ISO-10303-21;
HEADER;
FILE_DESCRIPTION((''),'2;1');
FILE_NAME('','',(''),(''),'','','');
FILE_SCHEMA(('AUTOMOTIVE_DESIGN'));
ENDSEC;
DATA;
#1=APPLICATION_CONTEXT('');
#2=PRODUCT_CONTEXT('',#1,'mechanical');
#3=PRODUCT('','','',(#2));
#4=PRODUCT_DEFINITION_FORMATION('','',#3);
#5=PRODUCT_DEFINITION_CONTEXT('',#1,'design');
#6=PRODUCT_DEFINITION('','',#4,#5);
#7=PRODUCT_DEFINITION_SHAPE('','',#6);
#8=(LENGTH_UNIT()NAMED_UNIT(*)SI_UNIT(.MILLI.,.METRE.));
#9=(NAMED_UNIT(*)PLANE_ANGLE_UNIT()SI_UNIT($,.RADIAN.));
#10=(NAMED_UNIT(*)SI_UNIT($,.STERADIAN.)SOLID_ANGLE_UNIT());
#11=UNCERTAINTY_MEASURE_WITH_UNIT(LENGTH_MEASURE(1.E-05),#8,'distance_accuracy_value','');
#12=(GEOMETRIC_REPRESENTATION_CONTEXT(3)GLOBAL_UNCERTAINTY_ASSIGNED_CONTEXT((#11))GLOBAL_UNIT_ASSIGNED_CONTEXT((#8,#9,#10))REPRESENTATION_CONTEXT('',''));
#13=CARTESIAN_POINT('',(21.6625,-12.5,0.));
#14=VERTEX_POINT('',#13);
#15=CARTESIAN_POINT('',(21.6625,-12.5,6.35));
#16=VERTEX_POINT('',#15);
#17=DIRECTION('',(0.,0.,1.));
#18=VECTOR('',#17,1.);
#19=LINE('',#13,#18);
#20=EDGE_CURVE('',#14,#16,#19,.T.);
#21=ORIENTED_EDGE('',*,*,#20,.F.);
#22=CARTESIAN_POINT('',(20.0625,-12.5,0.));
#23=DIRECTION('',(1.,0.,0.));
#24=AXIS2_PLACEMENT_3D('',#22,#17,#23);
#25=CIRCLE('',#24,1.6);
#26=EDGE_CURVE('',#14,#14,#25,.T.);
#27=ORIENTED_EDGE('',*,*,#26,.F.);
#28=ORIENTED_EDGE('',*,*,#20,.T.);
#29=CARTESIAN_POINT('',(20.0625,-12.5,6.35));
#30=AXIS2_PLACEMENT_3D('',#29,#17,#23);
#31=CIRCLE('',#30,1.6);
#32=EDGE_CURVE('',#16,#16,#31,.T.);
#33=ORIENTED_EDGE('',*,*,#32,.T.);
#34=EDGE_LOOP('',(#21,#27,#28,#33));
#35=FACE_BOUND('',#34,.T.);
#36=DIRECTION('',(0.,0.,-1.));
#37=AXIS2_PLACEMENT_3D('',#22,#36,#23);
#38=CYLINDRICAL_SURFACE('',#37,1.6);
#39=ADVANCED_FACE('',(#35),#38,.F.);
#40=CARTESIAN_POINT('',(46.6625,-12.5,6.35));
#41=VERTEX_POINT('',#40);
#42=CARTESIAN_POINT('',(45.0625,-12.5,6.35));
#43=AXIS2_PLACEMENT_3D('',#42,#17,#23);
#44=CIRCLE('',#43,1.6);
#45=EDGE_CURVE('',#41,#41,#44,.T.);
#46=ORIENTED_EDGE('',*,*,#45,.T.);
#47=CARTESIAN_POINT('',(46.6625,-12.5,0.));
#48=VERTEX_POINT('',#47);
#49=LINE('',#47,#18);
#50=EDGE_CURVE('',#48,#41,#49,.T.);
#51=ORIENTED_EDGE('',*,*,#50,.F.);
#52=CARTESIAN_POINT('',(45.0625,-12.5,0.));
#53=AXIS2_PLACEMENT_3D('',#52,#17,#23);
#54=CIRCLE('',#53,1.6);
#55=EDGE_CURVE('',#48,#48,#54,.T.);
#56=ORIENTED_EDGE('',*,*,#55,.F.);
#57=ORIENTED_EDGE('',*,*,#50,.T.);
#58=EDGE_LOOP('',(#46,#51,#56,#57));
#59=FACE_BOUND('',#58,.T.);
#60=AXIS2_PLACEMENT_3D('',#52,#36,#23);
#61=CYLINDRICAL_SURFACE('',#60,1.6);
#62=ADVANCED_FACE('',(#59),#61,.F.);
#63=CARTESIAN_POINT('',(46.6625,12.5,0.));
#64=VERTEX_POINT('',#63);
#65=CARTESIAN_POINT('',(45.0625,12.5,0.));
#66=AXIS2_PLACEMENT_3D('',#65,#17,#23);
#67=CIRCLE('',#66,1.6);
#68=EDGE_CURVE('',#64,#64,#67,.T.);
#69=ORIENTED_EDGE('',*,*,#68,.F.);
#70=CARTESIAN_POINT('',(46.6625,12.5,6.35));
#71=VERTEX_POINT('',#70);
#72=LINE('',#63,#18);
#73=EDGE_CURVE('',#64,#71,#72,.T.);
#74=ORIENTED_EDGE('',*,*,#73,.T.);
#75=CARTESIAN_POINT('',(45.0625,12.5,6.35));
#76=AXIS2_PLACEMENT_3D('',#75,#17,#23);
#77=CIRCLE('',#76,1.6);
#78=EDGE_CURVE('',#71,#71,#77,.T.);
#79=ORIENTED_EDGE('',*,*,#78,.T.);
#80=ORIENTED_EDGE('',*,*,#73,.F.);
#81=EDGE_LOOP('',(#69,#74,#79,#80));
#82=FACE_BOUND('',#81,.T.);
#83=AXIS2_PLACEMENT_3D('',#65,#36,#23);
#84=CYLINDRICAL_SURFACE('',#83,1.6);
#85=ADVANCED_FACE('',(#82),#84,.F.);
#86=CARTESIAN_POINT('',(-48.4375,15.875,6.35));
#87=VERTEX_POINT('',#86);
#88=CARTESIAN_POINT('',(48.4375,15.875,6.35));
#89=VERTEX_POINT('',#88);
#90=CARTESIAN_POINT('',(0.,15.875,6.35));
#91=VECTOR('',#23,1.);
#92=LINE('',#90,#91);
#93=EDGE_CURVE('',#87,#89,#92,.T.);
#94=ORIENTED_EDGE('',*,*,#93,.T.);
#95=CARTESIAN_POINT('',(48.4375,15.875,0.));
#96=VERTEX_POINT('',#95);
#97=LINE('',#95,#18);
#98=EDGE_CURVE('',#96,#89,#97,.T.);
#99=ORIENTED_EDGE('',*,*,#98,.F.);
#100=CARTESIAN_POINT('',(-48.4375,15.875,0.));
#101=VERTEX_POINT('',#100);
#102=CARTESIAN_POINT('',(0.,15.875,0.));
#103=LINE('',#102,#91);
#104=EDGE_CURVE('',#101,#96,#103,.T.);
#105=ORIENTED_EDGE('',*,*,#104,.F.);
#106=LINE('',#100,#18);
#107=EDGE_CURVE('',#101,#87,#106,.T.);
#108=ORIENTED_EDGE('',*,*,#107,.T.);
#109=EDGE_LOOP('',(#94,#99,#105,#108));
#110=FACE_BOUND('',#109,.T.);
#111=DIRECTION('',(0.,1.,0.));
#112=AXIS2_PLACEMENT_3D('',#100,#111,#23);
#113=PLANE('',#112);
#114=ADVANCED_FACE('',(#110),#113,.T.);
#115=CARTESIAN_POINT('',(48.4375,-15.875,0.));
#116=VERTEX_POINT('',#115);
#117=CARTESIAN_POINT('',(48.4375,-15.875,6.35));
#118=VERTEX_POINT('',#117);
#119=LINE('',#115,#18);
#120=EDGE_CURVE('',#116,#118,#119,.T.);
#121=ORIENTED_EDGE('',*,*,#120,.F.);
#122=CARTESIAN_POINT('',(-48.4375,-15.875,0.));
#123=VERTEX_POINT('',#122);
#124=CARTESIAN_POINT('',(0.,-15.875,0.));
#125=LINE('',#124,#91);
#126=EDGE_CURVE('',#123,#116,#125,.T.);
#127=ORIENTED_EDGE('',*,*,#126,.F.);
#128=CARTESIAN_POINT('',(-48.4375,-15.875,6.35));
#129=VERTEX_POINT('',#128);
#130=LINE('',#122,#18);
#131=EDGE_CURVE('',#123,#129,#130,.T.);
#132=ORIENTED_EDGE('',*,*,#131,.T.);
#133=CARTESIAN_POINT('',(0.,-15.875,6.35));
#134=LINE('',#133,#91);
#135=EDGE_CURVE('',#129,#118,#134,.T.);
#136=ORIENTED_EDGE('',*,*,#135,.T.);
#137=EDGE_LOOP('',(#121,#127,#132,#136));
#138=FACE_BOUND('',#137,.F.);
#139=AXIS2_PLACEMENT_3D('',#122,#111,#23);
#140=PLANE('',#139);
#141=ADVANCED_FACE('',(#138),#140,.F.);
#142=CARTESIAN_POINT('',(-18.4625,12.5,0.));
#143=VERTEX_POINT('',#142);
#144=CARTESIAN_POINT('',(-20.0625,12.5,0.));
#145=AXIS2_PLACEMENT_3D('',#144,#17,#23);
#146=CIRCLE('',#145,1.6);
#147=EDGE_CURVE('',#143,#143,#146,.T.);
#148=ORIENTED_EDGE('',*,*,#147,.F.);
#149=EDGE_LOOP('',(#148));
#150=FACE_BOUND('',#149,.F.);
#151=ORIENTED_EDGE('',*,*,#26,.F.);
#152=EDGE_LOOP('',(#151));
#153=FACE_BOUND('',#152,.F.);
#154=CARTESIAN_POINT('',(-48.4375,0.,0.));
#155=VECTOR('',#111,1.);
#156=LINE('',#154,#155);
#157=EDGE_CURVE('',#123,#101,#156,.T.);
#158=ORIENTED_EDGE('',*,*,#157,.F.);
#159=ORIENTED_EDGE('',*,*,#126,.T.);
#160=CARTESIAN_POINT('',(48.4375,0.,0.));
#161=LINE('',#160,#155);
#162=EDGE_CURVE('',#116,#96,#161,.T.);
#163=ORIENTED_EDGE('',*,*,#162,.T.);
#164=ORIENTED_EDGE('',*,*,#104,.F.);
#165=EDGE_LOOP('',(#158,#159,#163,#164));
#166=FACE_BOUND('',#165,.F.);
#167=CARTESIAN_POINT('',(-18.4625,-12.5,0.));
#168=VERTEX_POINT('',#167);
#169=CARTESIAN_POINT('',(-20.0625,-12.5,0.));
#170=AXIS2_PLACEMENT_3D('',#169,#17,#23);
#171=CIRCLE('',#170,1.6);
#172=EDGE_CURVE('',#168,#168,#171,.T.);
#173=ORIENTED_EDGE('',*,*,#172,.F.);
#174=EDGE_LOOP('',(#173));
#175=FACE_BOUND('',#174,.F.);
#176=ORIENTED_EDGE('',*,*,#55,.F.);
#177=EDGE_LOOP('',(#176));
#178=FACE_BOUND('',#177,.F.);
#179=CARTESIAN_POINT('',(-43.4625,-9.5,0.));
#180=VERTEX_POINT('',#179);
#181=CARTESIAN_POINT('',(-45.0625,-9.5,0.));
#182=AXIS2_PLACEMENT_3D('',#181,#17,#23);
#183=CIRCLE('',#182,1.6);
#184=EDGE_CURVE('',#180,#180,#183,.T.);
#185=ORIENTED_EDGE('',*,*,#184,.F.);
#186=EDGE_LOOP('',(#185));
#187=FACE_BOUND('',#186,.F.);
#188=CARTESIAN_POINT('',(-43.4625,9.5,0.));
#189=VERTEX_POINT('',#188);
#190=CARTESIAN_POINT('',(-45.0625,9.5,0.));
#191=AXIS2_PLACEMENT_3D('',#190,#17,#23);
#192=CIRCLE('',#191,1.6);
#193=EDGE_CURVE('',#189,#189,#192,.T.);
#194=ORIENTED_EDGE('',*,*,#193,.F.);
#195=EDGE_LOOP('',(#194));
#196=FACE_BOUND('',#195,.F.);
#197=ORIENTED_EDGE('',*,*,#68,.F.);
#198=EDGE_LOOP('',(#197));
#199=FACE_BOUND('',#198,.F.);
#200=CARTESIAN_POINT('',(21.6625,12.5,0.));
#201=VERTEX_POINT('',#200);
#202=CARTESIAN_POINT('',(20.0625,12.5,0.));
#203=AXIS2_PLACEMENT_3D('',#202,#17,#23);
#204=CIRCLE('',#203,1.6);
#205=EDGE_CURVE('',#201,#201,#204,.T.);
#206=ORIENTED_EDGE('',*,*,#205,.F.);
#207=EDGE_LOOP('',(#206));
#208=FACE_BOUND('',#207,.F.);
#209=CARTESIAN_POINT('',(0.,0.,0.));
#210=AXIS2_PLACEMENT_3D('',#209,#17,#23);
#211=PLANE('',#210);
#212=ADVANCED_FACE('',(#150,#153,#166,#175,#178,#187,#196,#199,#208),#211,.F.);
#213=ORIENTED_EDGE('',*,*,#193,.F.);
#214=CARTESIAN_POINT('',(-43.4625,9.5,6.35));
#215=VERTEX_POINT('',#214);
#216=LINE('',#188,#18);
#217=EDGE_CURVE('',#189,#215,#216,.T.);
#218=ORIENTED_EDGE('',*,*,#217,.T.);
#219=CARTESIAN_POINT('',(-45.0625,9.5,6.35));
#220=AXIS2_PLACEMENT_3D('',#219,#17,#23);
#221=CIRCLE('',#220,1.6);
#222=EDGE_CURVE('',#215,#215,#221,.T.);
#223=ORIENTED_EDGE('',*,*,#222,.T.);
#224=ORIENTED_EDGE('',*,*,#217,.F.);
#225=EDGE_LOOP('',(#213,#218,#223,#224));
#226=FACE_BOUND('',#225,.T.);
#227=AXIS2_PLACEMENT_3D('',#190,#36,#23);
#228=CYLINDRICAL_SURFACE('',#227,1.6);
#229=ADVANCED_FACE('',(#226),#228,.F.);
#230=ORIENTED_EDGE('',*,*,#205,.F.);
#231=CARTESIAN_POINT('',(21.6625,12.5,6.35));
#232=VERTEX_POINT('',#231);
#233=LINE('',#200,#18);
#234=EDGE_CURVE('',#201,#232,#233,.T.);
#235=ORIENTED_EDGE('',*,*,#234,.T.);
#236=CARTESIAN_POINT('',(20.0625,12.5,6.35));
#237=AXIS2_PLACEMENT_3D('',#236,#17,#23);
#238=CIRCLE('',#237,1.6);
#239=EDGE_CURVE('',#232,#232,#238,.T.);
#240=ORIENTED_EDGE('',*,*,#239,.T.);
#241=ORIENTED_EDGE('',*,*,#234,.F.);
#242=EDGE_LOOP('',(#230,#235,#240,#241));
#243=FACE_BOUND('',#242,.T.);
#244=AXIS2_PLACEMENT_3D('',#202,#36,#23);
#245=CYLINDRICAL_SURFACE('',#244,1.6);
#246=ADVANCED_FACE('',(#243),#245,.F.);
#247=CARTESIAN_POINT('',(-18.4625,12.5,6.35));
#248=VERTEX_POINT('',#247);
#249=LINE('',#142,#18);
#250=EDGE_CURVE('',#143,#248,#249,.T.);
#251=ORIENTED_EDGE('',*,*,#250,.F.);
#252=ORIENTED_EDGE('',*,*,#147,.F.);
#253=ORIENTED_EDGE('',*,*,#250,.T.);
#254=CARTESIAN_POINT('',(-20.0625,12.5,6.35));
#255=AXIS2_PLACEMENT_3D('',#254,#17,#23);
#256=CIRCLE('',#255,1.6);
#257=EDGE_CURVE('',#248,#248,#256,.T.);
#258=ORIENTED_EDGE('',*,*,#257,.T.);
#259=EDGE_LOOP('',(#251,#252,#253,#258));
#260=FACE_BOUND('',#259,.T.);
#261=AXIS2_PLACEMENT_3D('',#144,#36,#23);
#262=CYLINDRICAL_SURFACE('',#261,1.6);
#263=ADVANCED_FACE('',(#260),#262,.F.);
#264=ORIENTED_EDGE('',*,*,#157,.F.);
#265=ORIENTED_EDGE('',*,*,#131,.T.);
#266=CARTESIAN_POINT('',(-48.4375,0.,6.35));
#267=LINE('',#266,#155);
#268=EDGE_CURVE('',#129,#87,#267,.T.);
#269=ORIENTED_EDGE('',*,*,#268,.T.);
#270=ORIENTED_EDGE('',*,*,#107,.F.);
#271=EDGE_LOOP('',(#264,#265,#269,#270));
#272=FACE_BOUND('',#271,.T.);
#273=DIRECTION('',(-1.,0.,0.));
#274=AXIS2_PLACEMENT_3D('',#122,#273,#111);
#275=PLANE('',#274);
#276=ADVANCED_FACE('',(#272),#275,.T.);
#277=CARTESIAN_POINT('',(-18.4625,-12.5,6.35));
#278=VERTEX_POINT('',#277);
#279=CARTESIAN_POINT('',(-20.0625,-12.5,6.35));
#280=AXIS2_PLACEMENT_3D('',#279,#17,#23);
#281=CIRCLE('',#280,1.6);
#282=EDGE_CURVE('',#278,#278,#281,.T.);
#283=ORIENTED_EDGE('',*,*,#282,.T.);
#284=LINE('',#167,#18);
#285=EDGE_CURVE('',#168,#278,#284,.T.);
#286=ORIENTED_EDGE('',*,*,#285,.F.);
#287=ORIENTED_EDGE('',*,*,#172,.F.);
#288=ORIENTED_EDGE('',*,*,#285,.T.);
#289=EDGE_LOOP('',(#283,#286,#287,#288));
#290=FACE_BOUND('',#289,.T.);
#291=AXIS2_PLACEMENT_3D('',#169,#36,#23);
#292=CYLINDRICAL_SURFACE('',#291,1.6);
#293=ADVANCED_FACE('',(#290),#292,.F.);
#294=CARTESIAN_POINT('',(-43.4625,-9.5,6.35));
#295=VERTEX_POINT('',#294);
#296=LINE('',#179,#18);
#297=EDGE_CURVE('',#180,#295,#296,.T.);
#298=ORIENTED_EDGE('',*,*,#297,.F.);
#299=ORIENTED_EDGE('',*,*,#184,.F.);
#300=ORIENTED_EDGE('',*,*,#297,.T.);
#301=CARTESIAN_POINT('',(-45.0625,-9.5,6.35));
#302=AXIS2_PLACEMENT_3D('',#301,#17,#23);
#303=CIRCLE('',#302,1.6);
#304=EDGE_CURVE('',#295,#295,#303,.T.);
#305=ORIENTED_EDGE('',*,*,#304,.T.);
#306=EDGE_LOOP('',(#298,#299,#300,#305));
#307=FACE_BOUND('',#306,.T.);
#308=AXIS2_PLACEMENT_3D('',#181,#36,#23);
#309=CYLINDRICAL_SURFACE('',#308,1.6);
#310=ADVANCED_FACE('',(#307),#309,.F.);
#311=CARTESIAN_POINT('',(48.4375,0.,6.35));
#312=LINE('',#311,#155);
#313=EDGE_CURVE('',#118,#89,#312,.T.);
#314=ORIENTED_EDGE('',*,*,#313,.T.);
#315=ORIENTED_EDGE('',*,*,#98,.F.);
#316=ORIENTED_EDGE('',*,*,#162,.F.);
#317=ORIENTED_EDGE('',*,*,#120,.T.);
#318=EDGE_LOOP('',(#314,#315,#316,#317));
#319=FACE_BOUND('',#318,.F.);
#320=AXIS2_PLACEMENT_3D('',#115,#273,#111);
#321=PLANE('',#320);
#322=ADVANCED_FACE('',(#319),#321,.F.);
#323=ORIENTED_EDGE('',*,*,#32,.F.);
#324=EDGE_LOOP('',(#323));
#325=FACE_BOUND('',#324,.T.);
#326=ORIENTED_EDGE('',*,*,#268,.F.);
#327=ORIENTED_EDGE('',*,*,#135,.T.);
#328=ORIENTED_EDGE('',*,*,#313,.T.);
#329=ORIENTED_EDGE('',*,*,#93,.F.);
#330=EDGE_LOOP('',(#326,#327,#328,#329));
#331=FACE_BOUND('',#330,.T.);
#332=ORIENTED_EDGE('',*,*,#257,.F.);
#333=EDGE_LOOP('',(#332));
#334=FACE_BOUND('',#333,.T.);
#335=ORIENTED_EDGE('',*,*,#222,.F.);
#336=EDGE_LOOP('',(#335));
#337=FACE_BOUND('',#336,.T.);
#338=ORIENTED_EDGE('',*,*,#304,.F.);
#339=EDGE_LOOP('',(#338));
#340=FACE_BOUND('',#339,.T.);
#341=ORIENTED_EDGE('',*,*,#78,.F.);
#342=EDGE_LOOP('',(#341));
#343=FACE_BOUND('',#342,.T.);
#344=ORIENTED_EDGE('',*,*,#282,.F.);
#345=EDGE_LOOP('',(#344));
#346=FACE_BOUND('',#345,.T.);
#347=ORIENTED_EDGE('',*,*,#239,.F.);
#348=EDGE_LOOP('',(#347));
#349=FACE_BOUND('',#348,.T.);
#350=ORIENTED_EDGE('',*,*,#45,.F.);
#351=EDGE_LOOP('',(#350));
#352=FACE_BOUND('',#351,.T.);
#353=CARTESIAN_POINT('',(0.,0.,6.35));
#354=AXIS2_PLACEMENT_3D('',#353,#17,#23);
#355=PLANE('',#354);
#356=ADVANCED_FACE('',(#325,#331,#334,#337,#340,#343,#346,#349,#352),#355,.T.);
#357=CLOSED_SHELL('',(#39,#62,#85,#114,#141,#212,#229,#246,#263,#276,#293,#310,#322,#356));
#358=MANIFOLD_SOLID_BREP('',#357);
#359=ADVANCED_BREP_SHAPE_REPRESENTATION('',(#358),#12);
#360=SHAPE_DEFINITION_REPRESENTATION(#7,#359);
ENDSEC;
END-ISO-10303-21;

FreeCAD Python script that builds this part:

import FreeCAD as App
import Part
import Sketcher

V = App.Vector
Q = App.Units.Quantity

doc = App.newDocument("Part")
body = doc.addObject("PartDesign::Body", "Body")

# Sketch on XY plane
sketch1 = body.newObject("Sketcher::SketchObject", "Sketch")
sketch1.AttachmentSupport = (doc.getObject("XY_Plane"), [""])
sketch1.MapMode = "FlatFace"
sketch1.addGeometry(Part.LineSegment(V(-48.4375, 15.875, 0), V(-48.4375, -15.875, 0)), False)
sketch1.addGeometry(Part.LineSegment(V(-48.4375, -15.875, 0), V(48.4375, -15.875, 0)), False)
sketch1.addGeometry(Part.LineSegment(V(48.4375, -15.875, 0), V(48.4375, 15.875, 0)), False)
sketch1.addGeometry(Part.LineSegment(V(48.4375, 15.875, 0), V(-48.4375, 15.875, 0)), False)
sketch1.addGeometry(Part.Circle(V(-45.0625, -9.5, 0), V(0, 0, 1), 1.6), False)
sketch1.addGeometry(Part.Circle(V(-20.0625, -12.5, 0), V(0, 0, 1), 1.6), False)
sketch1.addGeometry(Part.Circle(V(20.0625, -12.5, 0), V(0, 0, 1), 1.6), False)
sketch1.addGeometry(Part.Circle(V(45.0625, -12.5, 0), V(0, 0, 1), 1.6), False)
sketch1.addGeometry(Part.Circle(V(-45.0625, 9.5, 0), V(0, 0, 1), 1.6), False)
sketch1.addGeometry(Part.Circle(V(-20.0625, 12.5, 0), V(0, 0, 1), 1.6), False)
sketch1.addGeometry(Part.Circle(V(20.0625, 12.5, 0), V(0, 0, 1), 1.6), False)
sketch1.addGeometry(Part.Circle(V(45.0625, 12.5, 0), V(0, 0, 1), 1.6), False)
sketch1.addConstraint(Sketcher.Constraint("Coincident", 0, 2, 1, 1))
sketch1.addConstraint(Sketcher.Constraint("Coincident", 1, 2, 2, 1))
sketch1.addConstraint(Sketcher.Constraint("Coincident", 2, 2, 3, 1))
sketch1.addConstraint(Sketcher.Constraint("Coincident", 3, 2, 0, 1))
sketch1.addConstraint(Sketcher.Constraint("Vertical", 0))
sketch1.addConstraint(Sketcher.Constraint("Horizontal", 1))
sketch1.addConstraint(Sketcher.Constraint("Vertical", 2))
sketch1.addConstraint(Sketcher.Constraint("Horizontal", 3))
sketch1.addConstraint(Sketcher.Constraint("Equal", 4, 5))
sketch1.addConstraint(Sketcher.Constraint("Equal", 5, 6))
sketch1.addConstraint(Sketcher.Constraint("Equal", 6, 7))
sketch1.addConstraint(Sketcher.Constraint("Equal", 7, 8))
sketch1.addConstraint(Sketcher.Constraint("Equal", 8, 9))
sketch1.addConstraint(Sketcher.Constraint("Equal", 9, 10))
sketch1.addConstraint(Sketcher.Constraint("Equal", 10, 11))
sketch1.addConstraint(Sketcher.Constraint("Symmetric", 6, 3, 9, 3, -1, 1))
sketch1.addConstraint(Sketcher.Constraint("Symmetric", 5, 3, 10, 3, -1, 1))
sketch1.addConstraint(Sketcher.Constraint("Symmetric", 0, 2, 2, 2, -1, 1))
sketch1.addConstraint(Sketcher.Constraint("Symmetric", 5, 3, 6, 3, -2))
sketch1.addConstraint(Sketcher.Constraint("Symmetric", 4, 3, 8, 3, -1))
sketch1.addConstraint(Sketcher.Constraint("Symmetric", 7, 3, 11, 3, -1))
sketch1.addConstraint(Sketcher.Constraint("Horizontal", 6, 3, 7, 3))
sketch1.addConstraint(Sketcher.Constraint("DistanceY", 0, 2, 0, 1, Q("1.25 in")))
sketch1.addConstraint(Sketcher.Constraint("Diameter", 4, Q("3.2 mm")))
sketch1.addConstraint(Sketcher.Constraint("DistanceX", 1, 1, 1, 2, Q("96.875 mm")))
sketch1.addConstraint(Sketcher.Constraint("DistanceX", 4, 3, -1, 1, Q("45.0625 mm")))
sketch1.addConstraint(Sketcher.Constraint("DistanceY", 4, 3, -1, 1, Q("9.5 mm")))
sketch1.addConstraint(Sketcher.Constraint("DistanceX", 5, 3, -1, 1, Q("20.0625 mm")))
sketch1.addConstraint(Sketcher.Constraint("DistanceY", 5, 3, -1, 1, Q("12.5 mm")))
sketch1.addConstraint(Sketcher.Constraint("DistanceX", -1, 1, 7, 3, Q("45.0625 mm")))
pad1 = body.newObject("PartDesign::Pad", "Pad")
pad1.Profile = sketch1
pad1.Length = Q("0.25 in")

doc.recompute()
